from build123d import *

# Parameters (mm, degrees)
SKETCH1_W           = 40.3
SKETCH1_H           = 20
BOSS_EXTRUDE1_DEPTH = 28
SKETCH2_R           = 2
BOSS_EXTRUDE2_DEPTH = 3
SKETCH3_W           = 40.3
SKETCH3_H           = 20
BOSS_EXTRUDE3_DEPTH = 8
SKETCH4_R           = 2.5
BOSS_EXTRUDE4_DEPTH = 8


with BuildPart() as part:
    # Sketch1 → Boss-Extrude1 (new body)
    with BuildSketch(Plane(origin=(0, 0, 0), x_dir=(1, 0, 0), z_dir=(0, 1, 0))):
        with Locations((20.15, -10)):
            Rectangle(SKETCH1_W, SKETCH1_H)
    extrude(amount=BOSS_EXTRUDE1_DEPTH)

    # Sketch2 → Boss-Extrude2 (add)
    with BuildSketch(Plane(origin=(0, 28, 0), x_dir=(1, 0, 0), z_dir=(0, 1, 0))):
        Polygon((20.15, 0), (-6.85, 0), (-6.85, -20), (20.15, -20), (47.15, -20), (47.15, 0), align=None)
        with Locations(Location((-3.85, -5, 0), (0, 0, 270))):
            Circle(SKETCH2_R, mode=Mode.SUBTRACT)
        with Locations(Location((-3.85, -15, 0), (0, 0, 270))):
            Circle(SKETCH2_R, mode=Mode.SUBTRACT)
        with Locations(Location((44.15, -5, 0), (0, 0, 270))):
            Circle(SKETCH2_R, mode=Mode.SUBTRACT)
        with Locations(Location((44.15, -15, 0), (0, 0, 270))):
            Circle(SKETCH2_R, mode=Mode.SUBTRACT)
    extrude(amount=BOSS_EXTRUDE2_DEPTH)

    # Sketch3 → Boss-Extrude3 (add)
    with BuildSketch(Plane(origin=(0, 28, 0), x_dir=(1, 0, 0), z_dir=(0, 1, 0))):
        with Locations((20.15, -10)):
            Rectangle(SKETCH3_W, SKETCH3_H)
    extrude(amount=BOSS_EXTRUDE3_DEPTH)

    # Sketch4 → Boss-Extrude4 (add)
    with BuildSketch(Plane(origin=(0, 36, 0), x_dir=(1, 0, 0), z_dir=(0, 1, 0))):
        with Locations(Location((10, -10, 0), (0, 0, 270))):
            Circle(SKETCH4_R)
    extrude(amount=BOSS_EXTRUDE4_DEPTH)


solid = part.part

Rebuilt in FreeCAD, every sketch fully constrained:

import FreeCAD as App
import Part
import Sketcher
from FreeCAD import Vector
Q = App.Units.Quantity

doc = App.newDocument("Part")
body = doc.addObject("PartDesign::Body", "Body")

# Sketch on XZ plane
sketch1 = body.newObject("Sketcher::SketchObject", "Sketch")
sketch1.AttachmentSupport = (doc.getObject("XZ_Plane"), [""])
sketch1.MapMode = "FlatFace"
sketch1.addGeometry(Part.LineSegment(Vector(0, 0, 0), Vector(0, 20, 0)), False)
sketch1.addGeometry(Part.LineSegment(Vector(0, 20, 0), Vector(40, 20, 0)), False)
sketch1.addGeometry(Part.LineSegment(Vector(40, 20, 0), Vector(40, 0, 0)), False)
sketch1.addGeometry(Part.LineSegment(Vector(40, 0, 0), Vector(0, 0, 0)), False)
sketch1.addConstraint(Sketcher.Constraint("Coincident", 0, 2, 1, 1))
sketch1.addConstraint(Sketcher.Constraint("Coincident", 1, 2, 2, 1))
sketch1.addConstraint(Sketcher.Constraint("Coincident", 2, 2, 3, 1))
sketch1.addConstraint(Sketcher.Constraint("Coincident", 3, 2, 0, 1))
sketch1.addConstraint(Sketcher.Constraint("Vertical", 0))
sketch1.addConstraint(Sketcher.Constraint("Horizontal", 1))
sketch1.addConstraint(Sketcher.Constraint("Vertical", 2))
sketch1.addConstraint(Sketcher.Constraint("Horizontal", 3))
sketch1.addConstraint(Sketcher.Constraint("Coincident", 3, 2, -1, 1))
sketch1.addConstraint(Sketcher.Constraint("DistanceY", 0, 1, 0, 2, Q("20 mm")))
sketch1.addConstraint(Sketcher.Constraint("DistanceX", 1, 1, 1, 2, Q("40.3 mm")))
pad1 = body.newObject("PartDesign::Pad", "Pad")
pad1.Profile = sketch1
pad1.Length = 28
pad1.Reversed = True

# Sketch on XZ plane
sketch2 = body.newObject("Sketcher::SketchObject", "Sketch001")
sketch2.AttachmentSupport = (doc.getObject("XZ_Plane"), [""])
sketch2.MapMode = "FlatFace"
sketch2.AttachmentOffset = App.Placement(Vector(0, 0, -28), App.Rotation())
sketch2.addGeometry(Part.LineSegment(Vector(-6.8, 0, 0), Vector(-6.8, 20, 0)), False)
sketch2.addGeometry(Part.LineSegment(Vector(-6.8, 20, 0), Vector(47.1, 20, 0)), False)
sketch2.addGeometry(Part.LineSegment(Vector(47.1, 20, 0), Vector(47.1, 0, 0)), False)
sketch2.addGeometry(Part.LineSegment(Vector(47.1, 0, 0), Vector(-6.8, 0, 0)), False)
sketch2.addGeometry(Part.Circle(Vector(-3.9, 15, 0), Vector(0, 0, 1), 2), False)
sketch2.addGeometry(Part.Circle(Vector(44.1, 15, 0), Vector(0, 0, 1), 2), False)
sketch2.addGeometry(Part.Circle(Vector(-3.9, 5, 0), Vector(0, 0, 1), 2), False)
sketch2.addGeometry(Part.Circle(Vector(44.1, 5, 0), Vector(0, 0, 1), 2), False)
sketch2.addConstraint(Sketcher.Constraint("Coincident", 0, 2, 1, 1))
sketch2.addConstraint(Sketcher.Constraint("Coincident", 1, 2, 2, 1))
sketch2.addConstraint(Sketcher.Constraint("Coincident", 2, 2, 3, 1))
sketch2.addConstraint(Sketcher.Constraint("Coincident", 3, 2, 0, 1))
sketch2.addConstraint(Sketcher.Constraint("Vertical", 0))
sketch2.addConstraint(Sketcher.Constraint("Horizontal", 1))
sketch2.addConstraint(Sketcher.Constraint("Vertical", 2))
sketch2.addConstraint(Sketcher.Constraint("Horizontal", 3))
sketch2.addConstraint(Sketcher.Constraint("Equal", 4, 5))
sketch2.addConstraint(Sketcher.Constraint("Equal", 5, 6))
sketch2.addConstraint(Sketcher.Constraint("Equal", 6, 7))
sketch2.addConstraint(Sketcher.Constraint("PointOnObject", 2, 2, -1))
sketch2.addConstraint(Sketcher.Constraint("Horizontal", 4, 3, 5, 3))
sketch2.addConstraint(Sketcher.Constraint("Horizontal", 6, 3, 7, 3))
sketch2.addConstraint(Sketcher.Constraint("Vertical", 4, 3, 6, 3))
sketch2.addConstraint(Sketcher.Constraint("Vertical", 5, 3, 7, 3))
sketch2.addConstraint(Sketcher.Constraint("Diameter", 4, Q("4 mm")))
sketch2.addConstraint(Sketcher.Constraint("DistanceX", 1, 1, 1, 2, Q("54 mm")))
sketch2.addConstraint(Sketcher.Constraint("DistanceY", 0, 1, 0, 2, Q("20 mm")))
sketch2.addConstraint(Sketcher.Constraint("DistanceY", -1, 1, 4, 3, Q("15 mm")))
sketch2.addConstraint(Sketcher.Constraint("DistanceY", -1, 1, 6, 3, Q("5 mm")))
sketch2.addConstraint(Sketcher.Constraint("DistanceX", 4, 3, 5, 3, Q("48 mm")))
sketch2.addConstraint(Sketcher.Constraint("DistanceX", 0, 2, 4, 3, Q("3 mm")))
sketch2.addConstraint(Sketcher.Constraint("DistanceX", 4, 3, -1, 1, Q("3.85 mm")))
pad2 = body.newObject("PartDesign::Pad", "Pad001")
pad2.Profile = sketch2
pad2.Length = 3
pad2.Reversed = True

# Sketch on XZ plane
sketch3 = body.newObject("Sketcher::SketchObject", "Sketch002")
sketch3.AttachmentSupport = (doc.getObject("XZ_Plane"), [""])
sketch3.MapMode = "FlatFace"
sketch3.AttachmentOffset = App.Placement(Vector(0, 0, -28), App.Rotation())
sketch3.addGeometry(Part.LineSegment(Vector(0, 0, 0), Vector(0, 20, 0)), False)
sketch3.addGeometry(Part.LineSegment(Vector(0, 20, 0), Vector(40, 20, 0)), False)
sketch3.addGeometry(Part.LineSegment(Vector(40, 20, 0), Vector(40, 0, 0)), False)
sketch3.addGeometry(Part.LineSegment(Vector(40, 0, 0), Vector(0, 0, 0)), False)
sketch3.addConstraint(Sketcher.Constraint("Coincident", 0, 2, 1, 1))
sketch3.addConstraint(Sketcher.Constraint("Coincident", 1, 2, 2, 1))
sketch3.addConstraint(Sketcher.Constraint("Coincident", 2, 2, 3, 1))
sketch3.addConstraint(Sketcher.Constraint("Coincident", 3, 2, 0, 1))
sketch3.addConstraint(Sketcher.Constraint("Vertical", 0))
sketch3.addConstraint(Sketcher.Constraint("Horizontal", 1))
sketch3.addConstraint(Sketcher.Constraint("Vertical", 2))
sketch3.addConstraint(Sketcher.Constraint("Horizontal", 3))
sketch3.addConstraint(Sketcher.Constraint("Coincident", 3, 2, -1, 1))
sketch3.addConstraint(Sketcher.Constraint("DistanceY", 0, 1, 0, 2, Q("20 mm")))
sketch3.addConstraint(Sketcher.Constraint("DistanceX", 1, 1, 1, 2, Q("40.3 mm")))
pad3 = body.newObject("PartDesign::Pad", "Pad002")
pad3.Profile = sketch3
pad3.Length = 8
pad3.Reversed = True

# Sketch on XZ plane
sketch4 = body.newObject("Sketcher::SketchObject", "Sketch003")
sketch4.AttachmentSupport = (doc.getObject("XZ_Plane"), [""])
sketch4.MapMode = "FlatFace"
sketch4.AttachmentOffset = App.Placement(Vector(0, 0, -36), App.Rotation())
sketch4.addGeometry(Part.Circle(Vector(10, 10, 0), Vector(0, 0, 1), 2.5), False)
sketch4.addConstraint(Sketcher.Constraint("Diameter", 0, Q("5 mm")))
sketch4.addConstraint(Sketcher.Constraint("DistanceX", -1, 1, 0, 3, Q("10 mm")))
sketch4.addConstraint(Sketcher.Constraint("DistanceY", -1, 1, 0, 3, Q("10 mm")))
pad4 = body.newObject("PartDesign::Pad", "Pad003")
pad4.Profile = sketch4
pad4.Length = 8
pad4.Reversed = True

doc.recompute()
